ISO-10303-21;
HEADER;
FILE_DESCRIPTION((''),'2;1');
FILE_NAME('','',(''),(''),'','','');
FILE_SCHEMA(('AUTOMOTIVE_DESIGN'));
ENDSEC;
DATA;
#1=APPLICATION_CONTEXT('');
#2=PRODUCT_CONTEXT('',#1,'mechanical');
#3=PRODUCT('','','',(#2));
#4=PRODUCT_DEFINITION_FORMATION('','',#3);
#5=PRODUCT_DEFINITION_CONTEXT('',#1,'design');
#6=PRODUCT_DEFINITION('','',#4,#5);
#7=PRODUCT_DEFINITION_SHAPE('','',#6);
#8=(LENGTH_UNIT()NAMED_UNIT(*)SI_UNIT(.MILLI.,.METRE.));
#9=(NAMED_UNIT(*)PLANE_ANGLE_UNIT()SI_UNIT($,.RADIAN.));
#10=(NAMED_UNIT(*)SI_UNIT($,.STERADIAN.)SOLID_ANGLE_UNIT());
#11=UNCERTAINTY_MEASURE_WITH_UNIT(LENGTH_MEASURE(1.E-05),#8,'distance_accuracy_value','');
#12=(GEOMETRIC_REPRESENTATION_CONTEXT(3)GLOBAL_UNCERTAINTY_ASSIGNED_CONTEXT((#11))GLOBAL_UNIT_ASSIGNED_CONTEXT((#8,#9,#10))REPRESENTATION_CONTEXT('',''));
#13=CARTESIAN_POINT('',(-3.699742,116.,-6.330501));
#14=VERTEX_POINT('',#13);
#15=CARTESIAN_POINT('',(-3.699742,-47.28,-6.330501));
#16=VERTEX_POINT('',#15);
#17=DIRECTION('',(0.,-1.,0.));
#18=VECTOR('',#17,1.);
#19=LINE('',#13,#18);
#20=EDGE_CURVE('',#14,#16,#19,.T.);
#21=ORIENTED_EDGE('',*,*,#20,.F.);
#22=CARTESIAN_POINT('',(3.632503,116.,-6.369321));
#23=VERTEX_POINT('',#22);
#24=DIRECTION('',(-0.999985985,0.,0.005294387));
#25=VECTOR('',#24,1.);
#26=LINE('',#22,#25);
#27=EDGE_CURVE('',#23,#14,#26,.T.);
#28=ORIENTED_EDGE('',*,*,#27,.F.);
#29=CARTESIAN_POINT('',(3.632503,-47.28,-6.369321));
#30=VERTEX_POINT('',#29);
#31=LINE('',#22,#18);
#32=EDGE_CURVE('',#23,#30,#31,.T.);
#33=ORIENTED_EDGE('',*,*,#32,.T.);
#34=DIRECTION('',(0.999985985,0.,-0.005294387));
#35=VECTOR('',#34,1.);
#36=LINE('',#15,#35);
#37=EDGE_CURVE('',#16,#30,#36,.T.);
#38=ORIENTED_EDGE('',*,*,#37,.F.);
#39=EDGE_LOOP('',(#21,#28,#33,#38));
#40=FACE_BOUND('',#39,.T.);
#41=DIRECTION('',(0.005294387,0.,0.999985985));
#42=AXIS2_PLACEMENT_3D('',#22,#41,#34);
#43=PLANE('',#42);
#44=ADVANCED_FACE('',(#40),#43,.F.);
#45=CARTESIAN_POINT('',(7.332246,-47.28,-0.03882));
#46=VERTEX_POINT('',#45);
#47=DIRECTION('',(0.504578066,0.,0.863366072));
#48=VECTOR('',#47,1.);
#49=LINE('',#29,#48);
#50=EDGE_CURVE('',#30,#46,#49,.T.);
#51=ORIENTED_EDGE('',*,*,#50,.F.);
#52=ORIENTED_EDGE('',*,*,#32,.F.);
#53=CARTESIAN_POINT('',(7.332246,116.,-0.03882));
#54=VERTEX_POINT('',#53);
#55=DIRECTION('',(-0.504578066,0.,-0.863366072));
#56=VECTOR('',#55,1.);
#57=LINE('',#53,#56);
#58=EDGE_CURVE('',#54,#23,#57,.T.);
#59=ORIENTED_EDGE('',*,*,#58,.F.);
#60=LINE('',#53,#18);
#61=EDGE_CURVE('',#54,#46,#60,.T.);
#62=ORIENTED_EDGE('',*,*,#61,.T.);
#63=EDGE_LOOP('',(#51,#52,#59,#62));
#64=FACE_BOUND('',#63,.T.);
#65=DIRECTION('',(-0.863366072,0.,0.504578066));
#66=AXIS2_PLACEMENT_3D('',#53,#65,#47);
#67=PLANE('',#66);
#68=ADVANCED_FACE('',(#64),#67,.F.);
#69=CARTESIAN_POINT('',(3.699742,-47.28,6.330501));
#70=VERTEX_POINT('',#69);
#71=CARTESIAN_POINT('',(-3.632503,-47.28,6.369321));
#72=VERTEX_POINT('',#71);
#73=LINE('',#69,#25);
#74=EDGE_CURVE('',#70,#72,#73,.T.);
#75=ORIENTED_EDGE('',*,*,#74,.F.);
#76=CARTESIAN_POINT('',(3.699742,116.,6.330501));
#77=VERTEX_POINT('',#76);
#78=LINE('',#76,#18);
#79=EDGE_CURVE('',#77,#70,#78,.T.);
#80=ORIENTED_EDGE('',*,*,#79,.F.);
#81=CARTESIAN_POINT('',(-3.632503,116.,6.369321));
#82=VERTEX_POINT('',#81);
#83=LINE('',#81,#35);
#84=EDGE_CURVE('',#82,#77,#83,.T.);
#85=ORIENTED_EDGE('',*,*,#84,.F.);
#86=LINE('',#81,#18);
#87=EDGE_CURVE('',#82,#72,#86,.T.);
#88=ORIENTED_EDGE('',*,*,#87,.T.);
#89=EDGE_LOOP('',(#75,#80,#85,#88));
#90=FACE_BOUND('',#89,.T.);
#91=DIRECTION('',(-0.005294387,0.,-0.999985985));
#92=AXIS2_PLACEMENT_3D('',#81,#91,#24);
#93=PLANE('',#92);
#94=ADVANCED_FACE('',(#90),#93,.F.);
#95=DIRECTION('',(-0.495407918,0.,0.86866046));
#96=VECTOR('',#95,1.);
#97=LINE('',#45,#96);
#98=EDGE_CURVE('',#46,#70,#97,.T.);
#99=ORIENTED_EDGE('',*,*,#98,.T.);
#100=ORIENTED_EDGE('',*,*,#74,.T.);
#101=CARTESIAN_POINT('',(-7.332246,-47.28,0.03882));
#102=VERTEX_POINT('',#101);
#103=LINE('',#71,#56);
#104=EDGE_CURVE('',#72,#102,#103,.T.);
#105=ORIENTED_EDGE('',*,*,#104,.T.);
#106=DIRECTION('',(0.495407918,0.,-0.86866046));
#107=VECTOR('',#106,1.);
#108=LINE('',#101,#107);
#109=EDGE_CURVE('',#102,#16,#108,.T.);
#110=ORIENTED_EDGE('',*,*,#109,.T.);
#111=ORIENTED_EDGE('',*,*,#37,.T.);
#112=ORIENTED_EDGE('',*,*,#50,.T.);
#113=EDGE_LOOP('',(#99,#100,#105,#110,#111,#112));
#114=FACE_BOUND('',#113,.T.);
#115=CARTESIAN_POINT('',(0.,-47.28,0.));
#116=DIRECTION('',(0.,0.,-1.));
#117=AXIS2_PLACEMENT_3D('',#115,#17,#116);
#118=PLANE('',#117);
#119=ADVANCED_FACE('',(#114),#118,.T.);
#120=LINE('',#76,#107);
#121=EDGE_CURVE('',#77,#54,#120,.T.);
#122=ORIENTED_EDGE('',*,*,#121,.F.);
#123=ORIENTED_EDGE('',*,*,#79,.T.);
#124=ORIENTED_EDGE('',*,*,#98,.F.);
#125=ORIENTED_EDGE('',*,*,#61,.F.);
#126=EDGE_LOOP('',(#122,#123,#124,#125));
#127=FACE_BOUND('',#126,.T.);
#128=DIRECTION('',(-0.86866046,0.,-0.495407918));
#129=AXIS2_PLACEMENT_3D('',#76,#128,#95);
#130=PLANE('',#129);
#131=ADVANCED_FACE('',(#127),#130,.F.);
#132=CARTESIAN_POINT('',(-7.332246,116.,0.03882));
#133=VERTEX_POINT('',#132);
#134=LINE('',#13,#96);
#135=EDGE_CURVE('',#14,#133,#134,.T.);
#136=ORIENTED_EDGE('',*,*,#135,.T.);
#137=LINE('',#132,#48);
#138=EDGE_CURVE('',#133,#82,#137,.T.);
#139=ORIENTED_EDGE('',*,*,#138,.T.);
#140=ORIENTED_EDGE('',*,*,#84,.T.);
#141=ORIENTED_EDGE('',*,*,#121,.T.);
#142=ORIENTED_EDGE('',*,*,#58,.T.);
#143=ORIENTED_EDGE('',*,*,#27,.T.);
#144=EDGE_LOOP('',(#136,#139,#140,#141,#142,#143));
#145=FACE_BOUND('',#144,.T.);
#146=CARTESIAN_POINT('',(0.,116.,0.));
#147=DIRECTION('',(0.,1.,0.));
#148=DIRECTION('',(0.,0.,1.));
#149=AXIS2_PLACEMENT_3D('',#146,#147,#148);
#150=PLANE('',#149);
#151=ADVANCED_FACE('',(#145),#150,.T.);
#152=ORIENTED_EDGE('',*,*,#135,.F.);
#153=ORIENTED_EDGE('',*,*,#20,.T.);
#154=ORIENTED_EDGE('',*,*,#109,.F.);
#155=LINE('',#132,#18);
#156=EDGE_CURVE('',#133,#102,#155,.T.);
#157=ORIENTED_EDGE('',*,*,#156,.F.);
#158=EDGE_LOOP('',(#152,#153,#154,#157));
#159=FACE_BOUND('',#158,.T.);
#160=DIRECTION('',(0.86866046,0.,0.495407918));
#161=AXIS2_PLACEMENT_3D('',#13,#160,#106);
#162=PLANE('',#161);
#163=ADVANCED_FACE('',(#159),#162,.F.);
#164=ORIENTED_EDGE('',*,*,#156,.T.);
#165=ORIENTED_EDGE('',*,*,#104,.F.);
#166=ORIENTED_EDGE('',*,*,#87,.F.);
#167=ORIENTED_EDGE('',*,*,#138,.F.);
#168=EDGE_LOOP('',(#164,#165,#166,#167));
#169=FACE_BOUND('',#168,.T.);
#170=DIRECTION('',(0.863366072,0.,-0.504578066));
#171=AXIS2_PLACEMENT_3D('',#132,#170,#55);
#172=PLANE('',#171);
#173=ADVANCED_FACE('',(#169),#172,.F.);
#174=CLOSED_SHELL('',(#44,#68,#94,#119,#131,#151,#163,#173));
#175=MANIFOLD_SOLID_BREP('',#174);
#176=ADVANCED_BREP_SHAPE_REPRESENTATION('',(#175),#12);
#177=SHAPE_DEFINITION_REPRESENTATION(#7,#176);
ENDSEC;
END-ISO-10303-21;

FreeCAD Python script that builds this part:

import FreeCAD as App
import Part
import Sketcher

V = App.Vector
Q = App.Units.Quantity

doc = App.newDocument("Part")
body = doc.addObject("PartDesign::Body", "Body")

# Sketch on XZ plane
sketch1 = body.newObject("Sketcher::SketchObject", "Sketch")
sketch1.AttachmentSupport = (doc.getObject("XZ_Plane"), [""])
sketch1.MapMode = "FlatFace"
sketch1.addGeometry(Part.LineSegment(V(-4, 6, 0), V(4, 6, 0)), False)
sketch1.addGeometry(Part.LineSegment(V(4, 6, 0), V(7, 0, 0)), False)
sketch1.addGeometry(Part.LineSegment(V(7, 0, 0), V(4, -6, 0)), False)
sketch1.addGeometry(Part.LineSegment(V(4, -6, 0), V(-4, -6, 0)), False)
sketch1.addGeometry(Part.LineSegment(V(-4, -6, 0), V(-7, 0, 0)), False)
sketch1.addGeometry(Part.LineSegment(V(-7, 0, 0), V(-4, 6, 0)), False)
sketch1.addConstraint(Sketcher.Constraint("Coincident", 0, 2, 1, 1))
sketch1.addConstraint(Sketcher.Constraint("Coincident", 1, 2, 2, 1))
sketch1.addConstraint(Sketcher.Constraint("Coincident", 2, 2, 3, 1))
sketch1.addConstraint(Sketcher.Constraint("Coincident", 3, 2, 4, 1))
sketch1.addConstraint(Sketcher.Constraint("Coincident", 4, 2, 5, 1))
sketch1.addConstraint(Sketcher.Constraint("Coincident", 5, 2, 0, 1))
sketch1.addConstraint(Sketcher.Constraint("Symmetric", 0, 2, 3, 2, -1, 1))
sketch1.addConstraint(Sketcher.Constraint("Symmetric", 1, 2, 4, 2, -1, 1))
sketch1.addConstraint(Sketcher.Constraint("Symmetric", 2, 2, 5, 2, -1, 1))
sketch1.addConstraint(Sketcher.Constraint("Equal", 0, 1))
sketch1.addConstraint(Sketcher.Constraint("Equal", 1, 2))
sketch1.addConstraint(Sketcher.Constraint("DistanceY", 3, 2, 0, 2, Q("12.661002 mm")))
sketch1.addConstraint(Sketcher.Constraint("DistanceY", 2, 2, 1, 2, Q("6.330501 mm")))
sketch1.addConstraint(Sketcher.Constraint("Distance", 0, Q("7.332348 mm")))
sketch1.addConstraint(Sketcher.Constraint("DistanceY", 1, 2, -1, 1, Q("0.03882 mm")))
pad1 = body.newObject("PartDesign::Pad", "Pad")
pad1.Profile = sketch1
pad1.Length = 116
pad1.Reversed = True

# Sketch on XZ plane
sketch2 = body.newObject("Sketcher::SketchObject", "Sketch001")
sketch2.AttachmentSupport = (doc.getObject("XZ_Plane"), [""])
sketch2.MapMode = "FlatFace"
sketch2.addGeometry(Part.LineSegment(V(7, 0, 0), V(4, 6, 0)), False)
sketch2.addGeometry(Part.LineSegment(V(4, 6, 0), V(-4, 6, 0)), False)
sketch2.addGeometry(Part.LineSegment(V(-4, 6, 0), V(-7, 0, 0)), False)
sketch2.addGeometry(Part.LineSegment(V(-7, 0, 0), V(-4, -6, 0)), False)
sketch2.addGeometry(Part.LineSegment(V(-4, -6, 0), V(4, -6, 0)), False)
sketch2.addGeometry(Part.LineSegment(V(4, -6, 0), V(7, 0, 0)), False)
sketch2.addConstraint(Sketcher.Constraint("Coincident", 0, 2, 1, 1))
sketch2.addConstraint(Sketcher.Constraint("Coincident", 1, 2, 2, 1))
sketch2.addConstraint(Sketcher.Constraint("Coincident", 2, 2, 3, 1))
sketch2.addConstraint(Sketcher.Constraint("Coincident", 3, 2, 4, 1))
sketch2.addConstraint(Sketcher.Constraint("Coincident", 4, 2, 5, 1))
sketch2.addConstraint(Sketcher.Constraint("Coincident", 5, 2, 0, 1))
sketch2.addConstraint(Sketcher.Constraint("Symmetric", 0, 2, 3, 2, -1, 1))
sketch2.addConstraint(Sketcher.Constraint("Symmetric", 1, 2, 4, 2, -1, 1))
sketch2.addConstraint(Sketcher.Constraint("Symmetric", 2, 2, 5, 2, -1, 1))
sketch2.addConstraint(Sketcher.Constraint("Equal", 0, 1))
sketch2.addConstraint(Sketcher.Constraint("Equal", 1, 2))
sketch2.addConstraint(Sketcher.Constraint("DistanceY", 3, 2, 0, 2, Q("12.661002 mm")))
sketch2.addConstraint(Sketcher.Constraint("DistanceY", 2, 2, 1, 2, Q("6.330501 mm")))
sketch2.addConstraint(Sketcher.Constraint("Distance", 0, Q("7.332348 mm")))
sketch2.addConstraint(Sketcher.Constraint("DistanceY", -1, 1, 1, 2, Q("6.369321 mm")))
pad2 = body.newObject("PartDesign::Pad", "Pad001")
pad2.Profile = sketch2
pad2.Length = 47.28

doc.recompute()
